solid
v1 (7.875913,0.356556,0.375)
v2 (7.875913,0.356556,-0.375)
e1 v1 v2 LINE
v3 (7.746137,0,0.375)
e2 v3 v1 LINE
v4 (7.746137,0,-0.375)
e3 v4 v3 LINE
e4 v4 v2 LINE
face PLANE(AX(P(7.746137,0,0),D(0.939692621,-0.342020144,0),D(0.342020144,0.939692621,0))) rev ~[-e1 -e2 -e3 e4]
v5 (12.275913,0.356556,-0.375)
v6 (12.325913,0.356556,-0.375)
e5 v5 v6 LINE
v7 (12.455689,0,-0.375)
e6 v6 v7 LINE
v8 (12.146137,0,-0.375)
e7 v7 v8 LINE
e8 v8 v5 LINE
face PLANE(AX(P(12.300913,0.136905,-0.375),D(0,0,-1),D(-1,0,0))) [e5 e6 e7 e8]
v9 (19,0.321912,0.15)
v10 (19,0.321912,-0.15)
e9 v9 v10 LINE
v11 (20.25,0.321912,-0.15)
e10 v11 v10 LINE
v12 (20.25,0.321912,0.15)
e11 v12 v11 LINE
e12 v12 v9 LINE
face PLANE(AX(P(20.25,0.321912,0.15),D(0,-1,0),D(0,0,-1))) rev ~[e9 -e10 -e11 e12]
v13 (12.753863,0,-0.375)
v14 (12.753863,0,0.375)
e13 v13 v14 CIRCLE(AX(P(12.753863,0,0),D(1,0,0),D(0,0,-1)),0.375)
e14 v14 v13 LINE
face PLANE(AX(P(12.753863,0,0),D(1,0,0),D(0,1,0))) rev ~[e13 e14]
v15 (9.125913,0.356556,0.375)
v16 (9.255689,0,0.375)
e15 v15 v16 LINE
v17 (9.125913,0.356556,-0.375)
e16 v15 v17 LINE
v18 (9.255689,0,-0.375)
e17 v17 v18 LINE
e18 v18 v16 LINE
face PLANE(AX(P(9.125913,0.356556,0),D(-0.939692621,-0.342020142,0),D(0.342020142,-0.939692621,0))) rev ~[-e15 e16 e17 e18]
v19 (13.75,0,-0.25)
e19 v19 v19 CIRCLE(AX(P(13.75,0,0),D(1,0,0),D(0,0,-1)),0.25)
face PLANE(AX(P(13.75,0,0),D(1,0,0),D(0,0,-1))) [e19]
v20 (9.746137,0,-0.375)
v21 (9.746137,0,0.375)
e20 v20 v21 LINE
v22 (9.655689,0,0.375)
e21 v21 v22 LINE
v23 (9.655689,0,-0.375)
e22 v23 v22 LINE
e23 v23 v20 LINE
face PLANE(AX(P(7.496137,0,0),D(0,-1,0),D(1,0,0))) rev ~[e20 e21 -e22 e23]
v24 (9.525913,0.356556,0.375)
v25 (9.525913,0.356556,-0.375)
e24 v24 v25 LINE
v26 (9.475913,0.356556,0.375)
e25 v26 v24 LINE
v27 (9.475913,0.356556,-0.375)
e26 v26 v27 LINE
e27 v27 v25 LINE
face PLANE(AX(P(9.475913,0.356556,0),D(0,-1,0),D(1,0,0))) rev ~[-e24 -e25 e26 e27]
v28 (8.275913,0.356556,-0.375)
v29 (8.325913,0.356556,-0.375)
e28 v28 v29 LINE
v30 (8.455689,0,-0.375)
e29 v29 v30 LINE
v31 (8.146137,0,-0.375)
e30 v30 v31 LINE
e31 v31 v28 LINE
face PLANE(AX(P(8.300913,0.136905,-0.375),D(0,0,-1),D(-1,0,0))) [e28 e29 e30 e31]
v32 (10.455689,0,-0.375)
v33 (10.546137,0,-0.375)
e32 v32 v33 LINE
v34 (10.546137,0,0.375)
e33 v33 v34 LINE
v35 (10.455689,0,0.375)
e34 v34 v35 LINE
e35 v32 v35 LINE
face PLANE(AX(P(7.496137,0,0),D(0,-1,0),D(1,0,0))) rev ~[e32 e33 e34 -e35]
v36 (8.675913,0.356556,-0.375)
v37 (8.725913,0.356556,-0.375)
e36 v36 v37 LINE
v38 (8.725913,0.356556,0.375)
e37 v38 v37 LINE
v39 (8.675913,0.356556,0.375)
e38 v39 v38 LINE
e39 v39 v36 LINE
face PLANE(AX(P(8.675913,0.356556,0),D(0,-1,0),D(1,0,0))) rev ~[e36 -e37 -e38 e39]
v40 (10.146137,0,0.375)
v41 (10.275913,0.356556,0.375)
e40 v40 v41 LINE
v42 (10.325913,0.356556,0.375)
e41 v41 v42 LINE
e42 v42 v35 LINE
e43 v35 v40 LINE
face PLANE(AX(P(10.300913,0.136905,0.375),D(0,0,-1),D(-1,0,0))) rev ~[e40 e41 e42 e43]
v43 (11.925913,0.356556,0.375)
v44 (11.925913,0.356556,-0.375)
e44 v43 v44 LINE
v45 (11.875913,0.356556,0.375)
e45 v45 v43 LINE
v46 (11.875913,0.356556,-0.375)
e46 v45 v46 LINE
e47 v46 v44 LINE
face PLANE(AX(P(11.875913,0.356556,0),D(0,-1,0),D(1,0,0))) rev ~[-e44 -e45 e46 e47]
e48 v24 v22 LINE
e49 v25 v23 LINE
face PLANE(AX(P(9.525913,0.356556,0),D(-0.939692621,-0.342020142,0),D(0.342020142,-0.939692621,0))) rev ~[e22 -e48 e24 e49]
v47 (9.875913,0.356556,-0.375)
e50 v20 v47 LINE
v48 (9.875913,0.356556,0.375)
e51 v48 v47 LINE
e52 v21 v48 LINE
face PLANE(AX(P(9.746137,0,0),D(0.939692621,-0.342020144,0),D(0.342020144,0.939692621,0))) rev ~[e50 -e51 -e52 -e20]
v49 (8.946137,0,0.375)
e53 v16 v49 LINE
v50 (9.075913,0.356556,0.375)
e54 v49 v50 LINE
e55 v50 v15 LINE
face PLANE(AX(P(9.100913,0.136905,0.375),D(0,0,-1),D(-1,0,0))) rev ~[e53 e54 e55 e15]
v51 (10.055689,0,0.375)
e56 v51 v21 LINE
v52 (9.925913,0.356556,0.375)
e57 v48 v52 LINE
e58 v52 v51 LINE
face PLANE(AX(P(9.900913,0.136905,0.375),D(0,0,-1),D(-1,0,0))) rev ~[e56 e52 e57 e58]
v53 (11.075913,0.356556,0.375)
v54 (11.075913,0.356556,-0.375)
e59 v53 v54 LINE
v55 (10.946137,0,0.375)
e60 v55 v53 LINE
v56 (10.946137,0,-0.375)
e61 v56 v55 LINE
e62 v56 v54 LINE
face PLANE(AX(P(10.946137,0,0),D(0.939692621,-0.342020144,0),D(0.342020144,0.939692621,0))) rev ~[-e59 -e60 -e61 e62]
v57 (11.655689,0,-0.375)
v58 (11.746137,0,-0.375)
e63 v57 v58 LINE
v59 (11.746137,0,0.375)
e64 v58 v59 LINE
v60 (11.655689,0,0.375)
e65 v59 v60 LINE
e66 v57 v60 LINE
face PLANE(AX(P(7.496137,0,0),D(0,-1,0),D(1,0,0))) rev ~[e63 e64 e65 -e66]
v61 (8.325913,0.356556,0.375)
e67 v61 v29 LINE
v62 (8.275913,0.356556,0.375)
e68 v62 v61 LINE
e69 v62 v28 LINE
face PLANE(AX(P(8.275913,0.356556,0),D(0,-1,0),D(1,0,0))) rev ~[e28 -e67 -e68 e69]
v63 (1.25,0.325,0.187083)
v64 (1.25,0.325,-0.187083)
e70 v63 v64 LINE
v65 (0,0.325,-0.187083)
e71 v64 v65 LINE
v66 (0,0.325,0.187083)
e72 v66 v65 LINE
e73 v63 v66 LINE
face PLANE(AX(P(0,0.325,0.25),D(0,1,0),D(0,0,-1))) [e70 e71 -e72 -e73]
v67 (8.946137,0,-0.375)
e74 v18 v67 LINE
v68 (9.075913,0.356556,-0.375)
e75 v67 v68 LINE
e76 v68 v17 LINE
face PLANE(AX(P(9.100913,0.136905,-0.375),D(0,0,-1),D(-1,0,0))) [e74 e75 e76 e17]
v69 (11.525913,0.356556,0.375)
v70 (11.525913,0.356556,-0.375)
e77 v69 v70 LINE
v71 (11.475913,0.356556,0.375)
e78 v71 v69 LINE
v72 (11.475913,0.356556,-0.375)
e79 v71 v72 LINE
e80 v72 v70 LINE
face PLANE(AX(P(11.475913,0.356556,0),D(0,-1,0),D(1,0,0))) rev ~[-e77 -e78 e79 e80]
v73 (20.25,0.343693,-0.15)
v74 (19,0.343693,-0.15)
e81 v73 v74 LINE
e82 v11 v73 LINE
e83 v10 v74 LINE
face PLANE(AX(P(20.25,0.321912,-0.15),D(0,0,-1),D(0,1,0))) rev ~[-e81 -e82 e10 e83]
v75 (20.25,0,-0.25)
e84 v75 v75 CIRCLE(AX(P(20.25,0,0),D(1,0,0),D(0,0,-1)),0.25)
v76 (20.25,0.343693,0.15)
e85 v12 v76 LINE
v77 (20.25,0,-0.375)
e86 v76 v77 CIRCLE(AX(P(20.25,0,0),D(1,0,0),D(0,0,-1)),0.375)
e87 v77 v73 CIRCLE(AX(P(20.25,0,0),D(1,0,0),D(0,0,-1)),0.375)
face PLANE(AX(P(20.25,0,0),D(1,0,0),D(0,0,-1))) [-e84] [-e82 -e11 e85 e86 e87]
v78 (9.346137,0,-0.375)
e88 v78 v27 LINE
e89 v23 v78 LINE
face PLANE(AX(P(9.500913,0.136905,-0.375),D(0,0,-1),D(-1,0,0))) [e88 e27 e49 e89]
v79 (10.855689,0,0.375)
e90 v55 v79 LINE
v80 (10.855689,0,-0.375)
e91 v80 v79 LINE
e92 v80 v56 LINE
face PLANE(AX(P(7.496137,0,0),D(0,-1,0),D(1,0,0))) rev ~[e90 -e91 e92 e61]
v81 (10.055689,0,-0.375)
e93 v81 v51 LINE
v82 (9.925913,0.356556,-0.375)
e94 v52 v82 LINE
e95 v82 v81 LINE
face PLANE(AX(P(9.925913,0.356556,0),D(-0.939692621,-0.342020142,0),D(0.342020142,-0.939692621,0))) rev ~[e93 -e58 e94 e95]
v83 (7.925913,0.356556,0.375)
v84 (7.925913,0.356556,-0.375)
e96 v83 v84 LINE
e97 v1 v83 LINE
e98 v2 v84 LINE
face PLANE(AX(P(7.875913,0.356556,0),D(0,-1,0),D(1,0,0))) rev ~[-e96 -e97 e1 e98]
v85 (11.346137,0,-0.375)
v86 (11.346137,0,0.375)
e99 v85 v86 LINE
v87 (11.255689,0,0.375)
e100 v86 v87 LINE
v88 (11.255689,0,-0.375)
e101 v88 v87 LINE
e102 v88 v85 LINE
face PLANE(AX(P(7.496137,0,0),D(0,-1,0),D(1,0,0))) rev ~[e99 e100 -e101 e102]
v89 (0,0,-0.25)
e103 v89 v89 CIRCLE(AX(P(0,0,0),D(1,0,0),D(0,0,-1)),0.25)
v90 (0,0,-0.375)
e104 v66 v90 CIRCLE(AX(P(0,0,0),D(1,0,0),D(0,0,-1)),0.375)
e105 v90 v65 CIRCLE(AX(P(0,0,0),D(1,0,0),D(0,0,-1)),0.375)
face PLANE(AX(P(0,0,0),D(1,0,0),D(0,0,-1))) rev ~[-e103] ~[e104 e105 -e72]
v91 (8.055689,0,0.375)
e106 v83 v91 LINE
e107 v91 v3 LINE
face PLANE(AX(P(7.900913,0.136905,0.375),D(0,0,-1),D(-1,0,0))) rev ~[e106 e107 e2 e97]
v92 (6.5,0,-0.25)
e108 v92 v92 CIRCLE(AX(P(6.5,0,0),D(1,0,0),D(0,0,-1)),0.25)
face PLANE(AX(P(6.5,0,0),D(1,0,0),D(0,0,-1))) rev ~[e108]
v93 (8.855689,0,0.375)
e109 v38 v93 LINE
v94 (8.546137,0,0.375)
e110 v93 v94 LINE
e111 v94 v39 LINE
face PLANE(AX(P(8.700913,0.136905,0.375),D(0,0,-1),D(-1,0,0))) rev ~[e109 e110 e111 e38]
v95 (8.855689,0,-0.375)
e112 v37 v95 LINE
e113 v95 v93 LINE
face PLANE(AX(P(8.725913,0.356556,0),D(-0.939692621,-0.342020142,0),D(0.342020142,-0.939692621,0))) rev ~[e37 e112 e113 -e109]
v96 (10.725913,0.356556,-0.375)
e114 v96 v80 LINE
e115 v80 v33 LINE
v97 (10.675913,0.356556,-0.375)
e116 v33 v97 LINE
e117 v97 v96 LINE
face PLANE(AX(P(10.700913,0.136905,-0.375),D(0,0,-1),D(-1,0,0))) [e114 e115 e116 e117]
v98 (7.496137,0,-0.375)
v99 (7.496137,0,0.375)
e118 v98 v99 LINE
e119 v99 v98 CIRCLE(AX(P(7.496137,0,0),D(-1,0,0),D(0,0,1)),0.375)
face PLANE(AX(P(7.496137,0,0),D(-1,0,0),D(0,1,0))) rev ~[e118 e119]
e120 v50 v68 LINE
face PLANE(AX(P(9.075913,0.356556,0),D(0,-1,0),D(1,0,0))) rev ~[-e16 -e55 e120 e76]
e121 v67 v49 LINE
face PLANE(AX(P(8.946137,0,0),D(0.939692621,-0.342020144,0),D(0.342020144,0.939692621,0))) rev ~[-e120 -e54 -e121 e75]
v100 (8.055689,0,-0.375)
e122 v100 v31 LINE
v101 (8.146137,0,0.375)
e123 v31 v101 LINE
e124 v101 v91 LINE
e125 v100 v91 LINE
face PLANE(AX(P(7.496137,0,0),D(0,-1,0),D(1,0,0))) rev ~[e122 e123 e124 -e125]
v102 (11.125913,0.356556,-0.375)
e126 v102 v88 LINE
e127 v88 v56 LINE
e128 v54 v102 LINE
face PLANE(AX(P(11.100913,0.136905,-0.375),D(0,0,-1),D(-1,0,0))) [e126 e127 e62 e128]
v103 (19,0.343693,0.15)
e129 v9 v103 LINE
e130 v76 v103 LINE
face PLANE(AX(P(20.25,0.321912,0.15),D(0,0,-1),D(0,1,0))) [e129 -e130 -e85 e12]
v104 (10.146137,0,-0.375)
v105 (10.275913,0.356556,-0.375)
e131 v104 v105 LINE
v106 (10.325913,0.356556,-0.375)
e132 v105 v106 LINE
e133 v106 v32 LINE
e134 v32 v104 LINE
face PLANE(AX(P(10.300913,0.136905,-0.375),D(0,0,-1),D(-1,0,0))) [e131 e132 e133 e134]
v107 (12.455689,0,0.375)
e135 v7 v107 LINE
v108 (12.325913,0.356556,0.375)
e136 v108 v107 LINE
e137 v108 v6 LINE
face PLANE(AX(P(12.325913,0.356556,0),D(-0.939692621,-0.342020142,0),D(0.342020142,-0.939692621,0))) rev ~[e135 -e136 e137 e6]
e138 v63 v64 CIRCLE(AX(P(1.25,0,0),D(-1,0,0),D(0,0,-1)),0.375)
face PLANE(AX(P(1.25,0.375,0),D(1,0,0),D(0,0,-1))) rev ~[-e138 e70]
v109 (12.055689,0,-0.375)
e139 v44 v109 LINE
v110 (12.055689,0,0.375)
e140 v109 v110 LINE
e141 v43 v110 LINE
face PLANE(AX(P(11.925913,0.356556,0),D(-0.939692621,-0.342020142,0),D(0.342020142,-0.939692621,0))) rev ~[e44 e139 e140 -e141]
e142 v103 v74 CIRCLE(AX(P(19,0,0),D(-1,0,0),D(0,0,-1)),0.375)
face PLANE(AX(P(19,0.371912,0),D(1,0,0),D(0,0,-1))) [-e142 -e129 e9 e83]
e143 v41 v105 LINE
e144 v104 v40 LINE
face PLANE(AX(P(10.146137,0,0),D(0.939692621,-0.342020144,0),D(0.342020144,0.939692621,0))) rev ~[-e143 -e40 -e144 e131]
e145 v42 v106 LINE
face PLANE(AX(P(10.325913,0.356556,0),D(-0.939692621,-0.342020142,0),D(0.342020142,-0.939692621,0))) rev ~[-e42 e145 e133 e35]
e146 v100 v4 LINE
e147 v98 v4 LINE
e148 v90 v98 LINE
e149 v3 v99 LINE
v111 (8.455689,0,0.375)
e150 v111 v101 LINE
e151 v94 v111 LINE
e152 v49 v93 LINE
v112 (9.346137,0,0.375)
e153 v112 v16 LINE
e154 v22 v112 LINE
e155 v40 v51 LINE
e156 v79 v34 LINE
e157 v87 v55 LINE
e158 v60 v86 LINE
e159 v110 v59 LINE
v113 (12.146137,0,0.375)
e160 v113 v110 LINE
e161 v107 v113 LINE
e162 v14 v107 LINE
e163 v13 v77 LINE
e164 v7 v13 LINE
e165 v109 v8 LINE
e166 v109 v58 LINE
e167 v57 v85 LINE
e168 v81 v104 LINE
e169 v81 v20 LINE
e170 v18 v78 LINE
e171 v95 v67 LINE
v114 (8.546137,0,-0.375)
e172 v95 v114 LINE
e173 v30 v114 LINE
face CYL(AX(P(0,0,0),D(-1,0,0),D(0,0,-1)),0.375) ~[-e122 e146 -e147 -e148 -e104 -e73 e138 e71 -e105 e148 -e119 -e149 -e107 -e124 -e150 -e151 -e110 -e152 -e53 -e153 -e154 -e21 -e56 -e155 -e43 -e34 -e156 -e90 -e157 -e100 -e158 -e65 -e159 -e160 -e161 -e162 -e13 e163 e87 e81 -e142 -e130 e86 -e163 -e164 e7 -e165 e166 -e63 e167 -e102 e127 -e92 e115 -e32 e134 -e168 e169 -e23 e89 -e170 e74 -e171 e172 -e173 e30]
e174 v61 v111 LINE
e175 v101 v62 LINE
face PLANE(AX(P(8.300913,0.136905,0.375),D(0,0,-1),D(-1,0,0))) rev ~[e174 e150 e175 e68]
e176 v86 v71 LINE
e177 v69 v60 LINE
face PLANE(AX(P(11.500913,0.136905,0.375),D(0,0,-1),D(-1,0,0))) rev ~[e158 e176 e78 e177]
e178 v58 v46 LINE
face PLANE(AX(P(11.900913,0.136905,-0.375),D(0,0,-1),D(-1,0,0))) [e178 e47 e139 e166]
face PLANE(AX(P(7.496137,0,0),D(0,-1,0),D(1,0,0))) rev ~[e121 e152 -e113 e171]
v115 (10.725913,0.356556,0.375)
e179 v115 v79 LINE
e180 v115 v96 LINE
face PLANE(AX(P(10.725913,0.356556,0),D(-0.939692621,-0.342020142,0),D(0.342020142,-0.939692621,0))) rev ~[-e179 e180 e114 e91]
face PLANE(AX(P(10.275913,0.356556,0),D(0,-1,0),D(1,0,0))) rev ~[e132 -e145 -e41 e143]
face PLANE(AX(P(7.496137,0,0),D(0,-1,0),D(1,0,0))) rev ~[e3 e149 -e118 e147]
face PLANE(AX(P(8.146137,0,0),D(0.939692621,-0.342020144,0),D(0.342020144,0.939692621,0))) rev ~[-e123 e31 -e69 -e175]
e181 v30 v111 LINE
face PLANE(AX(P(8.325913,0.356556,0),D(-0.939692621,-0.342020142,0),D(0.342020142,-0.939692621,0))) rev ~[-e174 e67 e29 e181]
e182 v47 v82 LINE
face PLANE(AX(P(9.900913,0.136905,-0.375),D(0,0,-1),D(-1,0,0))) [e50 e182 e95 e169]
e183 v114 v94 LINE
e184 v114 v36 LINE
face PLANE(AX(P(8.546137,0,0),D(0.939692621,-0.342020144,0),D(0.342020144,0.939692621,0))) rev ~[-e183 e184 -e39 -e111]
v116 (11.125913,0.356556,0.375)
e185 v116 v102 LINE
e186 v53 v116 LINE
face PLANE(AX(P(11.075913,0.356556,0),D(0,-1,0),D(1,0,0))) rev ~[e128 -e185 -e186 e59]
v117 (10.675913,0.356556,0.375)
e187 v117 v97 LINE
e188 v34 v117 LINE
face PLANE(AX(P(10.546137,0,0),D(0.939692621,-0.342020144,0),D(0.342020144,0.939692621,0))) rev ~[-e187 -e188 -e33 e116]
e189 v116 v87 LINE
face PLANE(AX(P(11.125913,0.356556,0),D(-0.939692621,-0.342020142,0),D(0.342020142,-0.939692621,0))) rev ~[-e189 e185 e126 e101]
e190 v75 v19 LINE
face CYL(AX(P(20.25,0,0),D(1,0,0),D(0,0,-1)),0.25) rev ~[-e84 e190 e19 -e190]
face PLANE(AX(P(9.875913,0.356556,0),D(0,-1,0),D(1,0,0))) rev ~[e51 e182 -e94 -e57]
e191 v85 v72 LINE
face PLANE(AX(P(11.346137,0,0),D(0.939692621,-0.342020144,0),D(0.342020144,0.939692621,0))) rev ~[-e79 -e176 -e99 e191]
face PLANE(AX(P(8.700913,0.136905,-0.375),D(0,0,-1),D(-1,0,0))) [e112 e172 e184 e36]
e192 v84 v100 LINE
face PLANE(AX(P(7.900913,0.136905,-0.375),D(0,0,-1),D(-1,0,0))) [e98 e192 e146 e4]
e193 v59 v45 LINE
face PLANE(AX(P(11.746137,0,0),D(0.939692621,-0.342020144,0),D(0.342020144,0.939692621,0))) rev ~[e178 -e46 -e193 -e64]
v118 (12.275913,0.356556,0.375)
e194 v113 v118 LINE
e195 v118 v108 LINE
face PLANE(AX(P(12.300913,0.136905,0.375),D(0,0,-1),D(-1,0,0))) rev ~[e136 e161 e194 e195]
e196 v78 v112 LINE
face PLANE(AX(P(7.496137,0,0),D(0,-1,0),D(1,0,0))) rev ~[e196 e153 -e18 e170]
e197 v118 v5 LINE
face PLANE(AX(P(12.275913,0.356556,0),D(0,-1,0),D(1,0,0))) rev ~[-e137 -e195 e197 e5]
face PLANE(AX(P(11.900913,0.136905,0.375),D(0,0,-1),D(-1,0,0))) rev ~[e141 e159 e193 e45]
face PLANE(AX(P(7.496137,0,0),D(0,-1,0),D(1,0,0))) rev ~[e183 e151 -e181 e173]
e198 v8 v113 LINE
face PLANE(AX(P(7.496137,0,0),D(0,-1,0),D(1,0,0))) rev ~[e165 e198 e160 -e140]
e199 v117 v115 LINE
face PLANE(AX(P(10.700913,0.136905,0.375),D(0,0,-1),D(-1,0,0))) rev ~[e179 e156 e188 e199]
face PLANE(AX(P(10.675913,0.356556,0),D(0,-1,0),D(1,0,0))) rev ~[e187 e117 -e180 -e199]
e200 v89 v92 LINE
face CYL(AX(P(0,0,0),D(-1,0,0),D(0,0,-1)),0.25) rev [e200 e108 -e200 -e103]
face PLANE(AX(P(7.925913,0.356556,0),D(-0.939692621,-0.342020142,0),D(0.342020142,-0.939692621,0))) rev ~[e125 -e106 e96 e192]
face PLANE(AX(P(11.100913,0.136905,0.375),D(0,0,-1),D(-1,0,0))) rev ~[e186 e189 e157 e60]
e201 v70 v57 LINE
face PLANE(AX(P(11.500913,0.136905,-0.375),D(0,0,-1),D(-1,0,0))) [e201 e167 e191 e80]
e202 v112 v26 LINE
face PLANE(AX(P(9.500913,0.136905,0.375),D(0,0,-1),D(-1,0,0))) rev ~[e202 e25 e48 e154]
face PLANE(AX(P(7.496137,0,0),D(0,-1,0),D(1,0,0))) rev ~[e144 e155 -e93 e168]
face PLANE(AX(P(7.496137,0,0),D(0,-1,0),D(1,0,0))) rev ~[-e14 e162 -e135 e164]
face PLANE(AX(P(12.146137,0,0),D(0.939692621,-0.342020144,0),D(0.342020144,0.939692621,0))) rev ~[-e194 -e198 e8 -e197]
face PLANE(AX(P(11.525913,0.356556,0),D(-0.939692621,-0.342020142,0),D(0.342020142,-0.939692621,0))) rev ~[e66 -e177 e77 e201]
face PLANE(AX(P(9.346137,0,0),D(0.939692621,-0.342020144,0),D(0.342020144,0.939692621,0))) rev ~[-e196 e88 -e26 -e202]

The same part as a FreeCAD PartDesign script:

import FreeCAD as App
import Part
import Sketcher

V = App.Vector
Q = App.Units.Quantity


def add_polygon(sketch, points):
    """Adds a closed chain of lines whose ends are joined by coincident constraints."""
    first, n = sketch.GeometryCount, len(points)
    for a, b in zip(points, points[1:] + points[:1]):
        sketch.addGeometry(Part.LineSegment(App.Vector(*a, 0), App.Vector(*b, 0)), False)
    for i in range(n):
        sketch.addConstraint(Sketcher.Constraint("Coincident", first + i, 2, first + (i + 1) % n, 1))

doc = App.newDocument("Part")
body = doc.addObject("PartDesign::Body", "Body")

# Sketch on YZ plane
sketch1 = body.newObject("Sketcher::SketchObject", "Sketch")
sketch1.AttachmentSupport = (doc.getObject("YZ_Plane"), [""])
sketch1.MapMode = "FlatFace"
sketch1.addGeometry(Part.Circle(V(0, 0, 0), V(0, 0, 1), 0.38), False)
sketch1.addConstraint(Sketcher.Constraint("Coincident", 0, 3, -1, 1))
sketch1.addConstraint(Sketcher.Constraint("Diameter", 0, Q("0.75 mm")))
pad1 = body.newObject("PartDesign::Pad", "Pad")
pad1.Profile = sketch1
pad1.Length = 20.25

# Sketch on YZ plane
sketch2 = body.newObject("Sketcher::SketchObject", "Sketch001")
sketch2.AttachmentSupport = (doc.getObject("YZ_Plane"), [""])
sketch2.MapMode = "FlatFace"
sketch2.addGeometry(Part.Circle(V(0, 0, 0), V(0, 0, 1), 0.25), False)
sketch2.addConstraint(Sketcher.Constraint("Coincident", 0, 3, -1, 1))
sketch2.addConstraint(Sketcher.Constraint("Diameter", 0, Q("0.5 mm")))
pocket1 = body.newObject("PartDesign::Pocket", "Pocket")
pocket1.Profile = sketch2
pocket1.Length = 6.5
pocket1.Reversed = True

# Sketch on YZ plane
sketch3 = body.newObject("Sketcher::SketchObject", "Sketch002")
sketch3.AttachmentSupport = (doc.getObject("YZ_Plane"), [""])
sketch3.MapMode = "FlatFace"
sketch3.AttachmentOffset = App.Placement(V(0, 0, 20.25), App.Rotation())
sketch3.addGeometry(Part.Circle(V(0, 0, 0), V(0, 0, 1), 0.25), False)
sketch3.addConstraint(Sketcher.Constraint("Coincident", 0, 3, -1, 1))
sketch3.addConstraint(Sketcher.Constraint("Diameter", 0, Q("0.5 mm")))
pocket2 = body.newObject("PartDesign::Pocket", "Pocket001")
pocket2.Profile = sketch3
pocket2.Length = 6.5

# Sketch on YZ plane
sketch4 = body.newObject("Sketcher::SketchObject", "Sketch003")
sketch4.AttachmentSupport = (doc.getObject("YZ_Plane"), [""])
sketch4.MapMode = "FlatFace"
sketch4.AttachmentOffset = App.Placement(V(0, 0, 20.25), App.Rotation())
add_polygon(sketch4, [(0.42, 0.15), (0.32, 0.15), (0.32, -0.15), (0.42, -0.15)])  # lines 0-3
sketch4.addConstraint(Sketcher.Constraint("Horizontal", 0))
sketch4.addConstraint(Sketcher.Constraint("Vertical", 1))
sketch4.addConstraint(Sketcher.Constraint("Horizontal", 2))
sketch4.addConstraint(Sketcher.Constraint("Vertical", 3))
sketch4.addConstraint(Sketcher.Constraint("DistanceX", 0, 2, 0, 1, Q("0.1 mm")))
sketch4.addConstraint(Sketcher.Constraint("DistanceY", 1, 2, 1, 1, Q("0.3 mm")))
sketch4.addConstraint(Sketcher.Constraint("DistanceY", -1, 1, 0, 2, Q("0.15 mm")))
sketch4.addConstraint(Sketcher.Constraint("DistanceX", -1, 1, 0, 2, Q("0.321912 mm")))
pocket3 = body.newObject("PartDesign::Pocket", "Pocket002")
pocket3.Profile = sketch4
pocket3.Length = 1.25

# Sketch on YZ plane
sketch5 = body.newObject("Sketcher::SketchObject", "Sketch004")
sketch5.AttachmentSupport = (doc.getObject("YZ_Plane"), [""])
sketch5.MapMode = "FlatFace"
add_polygon(sketch5, [(0.42, 0.25), (0.33, 0.25), (0.33, -0.25), (0.42, -0.25)])  # lines 0-3
sketch5.addConstraint(Sketcher.Constraint("Horizontal", 0))
sketch5.addConstraint(Sketcher.Constraint("Vertical", 1))
sketch5.addConstraint(Sketcher.Constraint("Horizontal", 2))
sketch5.addConstraint(Sketcher.Constraint("Vertical", 3))
sketch5.addConstraint(Sketcher.Constraint("DistanceX", 0, 2, 0, 1, Q("0.1 mm")))
sketch5.addConstraint(Sketcher.Constraint("DistanceY", 1, 2, 1, 1, Q("0.5 mm")))
sketch5.addConstraint(Sketcher.Constraint("DistanceY", -1, 1, 0, 2, Q("0.25 mm")))
sketch5.addConstraint(Sketcher.Constraint("DistanceX", -1, 1, 0, 2, Q("0.325 mm")))
pocket4 = body.newObject("PartDesign::Pocket", "Pocket003")
pocket4.Profile = sketch5
pocket4.Length = 1.25
pocket4.Reversed = True

# Sketch on XY plane
sketch6 = body.newObject("Sketcher::SketchObject", "Sketch005")
sketch6.AttachmentSupport = (doc.getObject("XY_Plane"), [""])
sketch6.MapMode = "FlatFace"
add_polygon(sketch6, [(7.5, 0.43), (7.5, 0), (12.75, 0), (12.75, 0.43)])  # lines 0-3
sketch6.addConstraint(Sketcher.Constraint("Vertical", 0))
sketch6.addConstraint(Sketcher.Constraint("Horizontal", 1))
sketch6.addConstraint(Sketcher.Constraint("Vertical", 2))
sketch6.addConstraint(Sketcher.Constraint("Horizontal", 3))
sketch6.addConstraint(Sketcher.Constraint("PointOnObject", 0, 2, -1))
sketch6.addConstraint(Sketcher.Constraint("DistanceX", 1, 1, 1, 2, Q("5.257726 mm")))
sketch6.addConstraint(Sketcher.Constraint("DistanceY", 0, 2, 0, 1, Q("0.430125 mm")))
sketch6.addConstraint(Sketcher.Constraint("DistanceX", -1, 1, 0, 2, Q("7.496137 mm")))
pocket5 = body.newObject("PartDesign::Pocket", "Pocket004")
pocket5.Profile = sketch6
pocket5.Type = "ThroughAll"
pocket5.Midplane = True

# Sketch on XY plane
sketch7 = body.newObject("Sketcher::SketchObject", "Sketch006")
sketch7.AttachmentSupport = (doc.getObject("XY_Plane"), [""])
sketch7.MapMode = "FlatFace"
add_polygon(sketch7, [(7.876, 0.357), (7.746, 0), (8.056, 0), (7.926, 0.357)])  # lines 0-3
sketch7.addConstraint(Sketcher.Constraint("Horizontal", 1))
sketch7.addConstraint(Sketcher.Constraint("Horizontal", 3))
sketch7.addConstraint(Sketcher.Constraint("PointOnObject", 0, 2, -1))
sketch7.addConstraint(Sketcher.Constraint("Equal", 0, 2))
sketch7.addConstraint(Sketcher.Constraint("Angle", 0, Q("-110 deg")))
sketch7.addConstraint(Sketcher.Constraint("DistanceX", 3, 2, 3, 1, Q("0.05 mm")))
sketch7.addConstraint(Sketcher.Constraint("DistanceX", 1, 1, 1, 2, Q("0.309552 mm")))
sketch7.addConstraint(Sketcher.Constraint("DistanceX", -1, 1, 1, 2, Q("8.055689 mm")))
pad2 = body.newObject("PartDesign::Pad", "Pad001")
pad2.Profile = sketch7
pad2.Length = 0.75
pad2.Midplane = True
doc.recompute()

linearpattern = body.newObject("PartDesign::LinearPattern", "LinearPattern")
linearpattern.Originals = [pad2]
linearpattern.Direction = (doc.getObject("X_Axis"), [""])
linearpattern.Mode = "offset"
linearpattern.Offset = 0.4
linearpattern.Occurrences = 12
body.Tip = linearpattern

doc.recompute()
